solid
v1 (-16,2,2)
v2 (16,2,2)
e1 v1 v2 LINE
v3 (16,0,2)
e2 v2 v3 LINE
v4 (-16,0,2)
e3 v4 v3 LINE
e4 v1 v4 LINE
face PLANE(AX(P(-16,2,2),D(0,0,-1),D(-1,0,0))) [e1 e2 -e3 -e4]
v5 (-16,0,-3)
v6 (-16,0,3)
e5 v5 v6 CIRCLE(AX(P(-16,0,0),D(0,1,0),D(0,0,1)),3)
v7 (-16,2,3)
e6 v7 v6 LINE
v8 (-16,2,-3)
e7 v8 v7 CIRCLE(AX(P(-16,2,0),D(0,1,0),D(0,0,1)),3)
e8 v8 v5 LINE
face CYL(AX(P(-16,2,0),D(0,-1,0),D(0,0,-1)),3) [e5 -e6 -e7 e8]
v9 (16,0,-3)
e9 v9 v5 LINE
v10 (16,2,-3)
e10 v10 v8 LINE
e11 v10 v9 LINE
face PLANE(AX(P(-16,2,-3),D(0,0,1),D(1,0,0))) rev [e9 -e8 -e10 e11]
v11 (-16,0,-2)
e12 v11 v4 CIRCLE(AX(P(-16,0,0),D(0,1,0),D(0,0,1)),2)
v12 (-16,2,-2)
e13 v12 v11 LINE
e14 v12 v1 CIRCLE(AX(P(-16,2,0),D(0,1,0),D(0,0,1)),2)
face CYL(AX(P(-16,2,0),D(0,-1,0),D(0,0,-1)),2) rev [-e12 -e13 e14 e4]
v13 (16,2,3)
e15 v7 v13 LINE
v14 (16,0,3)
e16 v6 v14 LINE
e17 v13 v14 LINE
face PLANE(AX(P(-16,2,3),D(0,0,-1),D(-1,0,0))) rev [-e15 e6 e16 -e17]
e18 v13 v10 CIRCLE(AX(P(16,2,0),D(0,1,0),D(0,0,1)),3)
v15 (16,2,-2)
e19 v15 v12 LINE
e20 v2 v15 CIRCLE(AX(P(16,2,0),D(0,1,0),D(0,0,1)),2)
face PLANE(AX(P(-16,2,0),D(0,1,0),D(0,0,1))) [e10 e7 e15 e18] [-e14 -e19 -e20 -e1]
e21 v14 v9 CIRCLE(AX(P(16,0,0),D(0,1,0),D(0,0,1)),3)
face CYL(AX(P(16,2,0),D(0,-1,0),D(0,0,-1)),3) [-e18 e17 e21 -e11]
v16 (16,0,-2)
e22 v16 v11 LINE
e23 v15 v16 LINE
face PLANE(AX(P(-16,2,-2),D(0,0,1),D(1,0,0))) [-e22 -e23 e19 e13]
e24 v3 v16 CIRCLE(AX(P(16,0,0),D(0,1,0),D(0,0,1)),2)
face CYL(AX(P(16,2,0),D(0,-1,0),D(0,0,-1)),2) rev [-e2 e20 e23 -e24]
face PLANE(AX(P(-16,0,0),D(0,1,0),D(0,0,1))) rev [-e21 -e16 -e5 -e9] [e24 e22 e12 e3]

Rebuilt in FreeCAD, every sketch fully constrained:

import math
import FreeCAD as App
import Part
import Sketcher

V = App.Vector
Q = App.Units.Quantity

doc = App.newDocument("Part")
body = doc.addObject("PartDesign::Body", "Body")

# Sketch on XZ plane
sketch1 = body.newObject("Sketcher::SketchObject", "Sketch")
sketch1.AttachmentSupport = (doc.getObject("XZ_Plane"), [""])
sketch1.MapMode = "FlatFace"
sketch1.addGeometry(Part.LineSegment(V(16, -3, 0), V(-16, -3, 0)), False)
sketch1.addGeometry(Part.ArcOfCircle(Part.Circle(V(-16, 0, 0), V(0, 0, 1), 3), math.radians(90), math.radians(270)), False)
sketch1.addGeometry(Part.LineSegment(V(-16, 3, 0), V(16, 3, 0)), False)
sketch1.addGeometry(Part.ArcOfCircle(Part.Circle(V(16, 0, 0), V(0, 0, 1), 3), math.radians(-90), math.radians(90)), False)
sketch1.addGeometry(Part.LineSegment(V(-16, -2, 0), V(16, -2, 0)), False)
sketch1.addGeometry(Part.ArcOfCircle(Part.Circle(V(16, 0, 0), V(0, 0, 1), 2), math.radians(-90), math.radians(90)), False)
sketch1.addGeometry(Part.LineSegment(V(16, 2, 0), V(-16, 2, 0)), False)
sketch1.addGeometry(Part.ArcOfCircle(Part.Circle(V(-16, 0, 0), V(0, 0, 1), 2), math.radians(90), math.radians(270)), False)
sketch1.addConstraint(Sketcher.Constraint("Tangent", 0, 2, 1, 2))
sketch1.addConstraint(Sketcher.Constraint("Tangent", 1, 1, 2, 1))
sketch1.addConstraint(Sketcher.Constraint("Tangent", 2, 2, 3, 2))
sketch1.addConstraint(Sketcher.Constraint("Tangent", 3, 1, 0, 1))
sketch1.addConstraint(Sketcher.Constraint("Tangent", 4, 2, 5, 1))
sketch1.addConstraint(Sketcher.Constraint("Tangent", 5, 2, 6, 1))
sketch1.addConstraint(Sketcher.Constraint("Tangent", 6, 2, 7, 1))
sketch1.addConstraint(Sketcher.Constraint("Tangent", 7, 2, 4, 1))
sketch1.addConstraint(Sketcher.Constraint("Horizontal", 0))
sketch1.addConstraint(Sketcher.Constraint("Horizontal", 2))
sketch1.addConstraint(Sketcher.Constraint("Horizontal", 4))
sketch1.addConstraint(Sketcher.Constraint("Horizontal", 6))
sketch1.addConstraint(Sketcher.Constraint("Coincident", 5, 3, 3, 3))
sketch1.addConstraint(Sketcher.Constraint("Symmetric", 1, 3, 3, 3, -1, 1))
sketch1.addConstraint(Sketcher.Constraint("Vertical", 7, 3, 0, 2))
sketch1.addConstraint(Sketcher.Constraint("Radius", 1, Q("3 mm")))
sketch1.addConstraint(Sketcher.Constraint("Radius", 5, Q("2 mm")))
sketch1.addConstraint(Sketcher.Constraint("DistanceX", 0, 2, 0, 1, Q("32 mm")))
pad1 = body.newObject("PartDesign::Pad", "Pad")
pad1.Profile = sketch1
pad1.Length = 2
pad1.Reversed = True

doc.recompute()
